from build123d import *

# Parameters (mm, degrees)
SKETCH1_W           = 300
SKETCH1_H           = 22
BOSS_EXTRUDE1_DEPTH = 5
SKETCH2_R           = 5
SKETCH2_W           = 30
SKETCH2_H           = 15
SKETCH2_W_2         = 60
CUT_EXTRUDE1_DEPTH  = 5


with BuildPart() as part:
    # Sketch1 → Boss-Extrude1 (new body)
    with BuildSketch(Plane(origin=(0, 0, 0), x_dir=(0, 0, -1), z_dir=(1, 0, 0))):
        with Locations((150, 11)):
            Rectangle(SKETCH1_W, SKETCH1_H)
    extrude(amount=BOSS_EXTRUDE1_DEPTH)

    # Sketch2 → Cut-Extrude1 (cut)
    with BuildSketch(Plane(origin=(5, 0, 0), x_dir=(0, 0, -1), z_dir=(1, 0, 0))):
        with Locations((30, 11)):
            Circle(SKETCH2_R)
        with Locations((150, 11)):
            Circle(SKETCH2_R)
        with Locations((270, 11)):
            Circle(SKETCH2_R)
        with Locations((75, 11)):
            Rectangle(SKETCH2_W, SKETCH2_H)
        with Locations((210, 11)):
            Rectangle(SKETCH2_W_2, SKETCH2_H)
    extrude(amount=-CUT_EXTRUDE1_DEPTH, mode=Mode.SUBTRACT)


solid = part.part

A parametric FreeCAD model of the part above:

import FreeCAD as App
import Part
import Sketcher

V = App.Vector


def add_polygon(sketch, points):
    """Adds a closed chain of lines whose ends are joined by coincident constraints."""
    first, n = sketch.GeometryCount, len(points)
    for a, b in zip(points, points[1:] + points[:1]):
        sketch.addGeometry(Part.LineSegment(App.Vector(*a, 0), App.Vector(*b, 0)), False)
    for i in range(n):
        sketch.addConstraint(Sketcher.Constraint("Coincident", first + i, 2, first + (i + 1) % n, 1))

doc = App.newDocument("Part")
body = doc.addObject("PartDesign::Body", "Body")

sketch1 = body.newObject("Sketcher::SketchObject", "Sketch")
sketch1.AttachmentSupport = (doc.getObject("YZ_Plane"), [""])
sketch1.MapMode = "FlatFace"
add_polygon(sketch1, [(22, 0), (0, 0), (0, -300), (22, -300)])
sketch1.addConstraint(Sketcher.Constraint("Horizontal", 0))
sketch1.addConstraint(Sketcher.Constraint("Vertical", 1))
sketch1.addConstraint(Sketcher.Constraint("Horizontal", 2))
sketch1.addConstraint(Sketcher.Constraint("Vertical", 3))
sketch1.addConstraint(Sketcher.Constraint("Coincident", 0, 2, -1, 1))
sketch1.addConstraint(Sketcher.Constraint("DistanceX", 0, 2, 0, 1, 22.0))
sketch1.addConstraint(Sketcher.Constraint("DistanceY", 1, 2, 1, 1, 300.0))
pad1 = body.newObject("PartDesign::Pad", "Pad")
pad1.Profile = sketch1
pad1.Length = 5

sketch2 = body.newObject("Sketcher::SketchObject", "Sketch001")
sketch2.AttachmentSupport = (doc.getObject("YZ_Plane"), [""])
sketch2.MapMode = "FlatFace"
sketch2.AttachmentOffset = App.Placement(V(0, 0, 5), App.Rotation())
sketch2.addGeometry(Part.Circle(V(11, -30, 0), V(0, 0, 1), 5), False)
sketch2.addGeometry(Part.Circle(V(11, -150, 0), V(0, 0, 1), 5), False)
sketch2.addGeometry(Part.Circle(V(11, -270, 0), V(0, 0, 1), 5), False)
add_polygon(sketch2, [(18, -60), (4, -60), (4, -90), (18, -90)])
add_polygon(sketch2, [(18, -180), (4, -180), (4, -240), (18, -240)])
sketch2.addConstraint(Sketcher.Constraint("Horizontal", 3))
sketch2.addConstraint(Sketcher.Constraint("Vertical", 4))
sketch2.addConstraint(Sketcher.Constraint("Horizontal", 5))
sketch2.addConstraint(Sketcher.Constraint("Vertical", 6))
sketch2.addConstraint(Sketcher.Constraint("Horizontal", 7))
sketch2.addConstraint(Sketcher.Constraint("Vertical", 8))
sketch2.addConstraint(Sketcher.Constraint("Horizontal", 9))
sketch2.addConstraint(Sketcher.Constraint("Vertical", 10))
sketch2.addConstraint(Sketcher.Constraint("Equal", 0, 1))
sketch2.addConstraint(Sketcher.Constraint("Equal", 1, 2))
sketch2.addConstraint(Sketcher.Constraint("Vertical", 0, 3, 1, 3))
sketch2.addConstraint(Sketcher.Constraint("Vertical", 1, 3, 2, 3))
sketch2.addConstraint(Sketcher.Constraint("Vertical", 4, 2, 7, 2))
sketch2.addConstraint(Sketcher.Constraint("Vertical", 6, 2, 9, 2))
sketch2.addConstraint(Sketcher.Constraint("Diameter", 0, 10.0))
sketch2.addConstraint(Sketcher.Constraint("DistanceX", 3, 2, 3, 1, 15.0))
sketch2.addConstraint(Sketcher.Constraint("DistanceY", 4, 2, 4, 1, 30.0))
sketch2.addConstraint(Sketcher.Constraint("DistanceY", 8, 2, 8, 1, 60.0))
sketch2.addConstraint(Sketcher.Constraint("DistanceX", -1, 1, 0, 3, 11.0))
sketch2.addConstraint(Sketcher.Constraint("DistanceY", 0, 3, -1, 1, 30.0))
sketch2.addConstraint(Sketcher.Constraint("DistanceY", 1, 3, -1, 1, 150.0))
sketch2.addConstraint(Sketcher.Constraint("DistanceY", 2, 3, -1, 1, 270.0))
sketch2.addConstraint(Sketcher.Constraint("DistanceY", 3, 2, -1, 1, 60.0))
sketch2.addConstraint(Sketcher.Constraint("DistanceY", 7, 2, -1, 1, 180.0))
sketch2.addConstraint(Sketcher.Constraint("DistanceX", -1, 1, 3, 2, 3.5))
pocket1 = body.newObject("PartDesign::Pocket", "Pocket")
pocket1.Profile = sketch2
pocket1.Length = 5

doc.recompute()
